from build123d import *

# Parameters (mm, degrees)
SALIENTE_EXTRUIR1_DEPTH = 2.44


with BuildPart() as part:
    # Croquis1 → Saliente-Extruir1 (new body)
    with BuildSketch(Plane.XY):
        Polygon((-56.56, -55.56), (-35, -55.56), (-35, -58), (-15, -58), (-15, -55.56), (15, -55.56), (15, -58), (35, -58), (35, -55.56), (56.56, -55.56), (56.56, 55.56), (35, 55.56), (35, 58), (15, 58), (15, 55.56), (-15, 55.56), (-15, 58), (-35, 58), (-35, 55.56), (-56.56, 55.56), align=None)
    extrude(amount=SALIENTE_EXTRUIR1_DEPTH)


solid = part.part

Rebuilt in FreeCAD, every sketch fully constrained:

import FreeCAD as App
import Part
import Sketcher

V = App.Vector


def add_polygon(sketch, points):
    """Adds a closed chain of lines whose ends are joined by coincident constraints."""
    first, n = sketch.GeometryCount, len(points)
    for a, b in zip(points, points[1:] + points[:1]):
        sketch.addGeometry(Part.LineSegment(App.Vector(*a, 0), App.Vector(*b, 0)), False)
    for i in range(n):
        sketch.addConstraint(Sketcher.Constraint("Coincident", first + i, 2, first + (i + 1) % n, 1))

doc = App.newDocument("Part")
params = doc.addObject("Spreadsheet::Sheet", "Params")
for row, (alias, value) in enumerate([
    ("sketch1_width", "20 mm"),
    ("sketch1_width2", "30 mm"),
    ("sketch1_width3", "21.56 mm"),
    ("sketch1_height", "2.44 mm"),
    ("pad1_length", "2.44 mm"),
], start=1):
    params.set(f"A{row}", alias)
    params.set(f"B{row}", "=" + value)
    params.setAlias(f"B{row}", alias)

body = doc.addObject("PartDesign::Body", "Body")

sketch1 = body.newObject("Sketcher::SketchObject", "Sketch")
sketch1.AttachmentSupport = (doc.getObject("XY_Plane"), [""])
sketch1.MapMode = "FlatFace"
add_polygon(sketch1, [(-56.56, -55.56), (-35, -55.56), (-35, -58), (-15, -58), (-15, -55.56), (15, -55.56), (15, -58), (35, -58), (35, -55.56), (56.56, -55.56), (56.56, 55.56), (35, 55.56), (35, 58), (15, 58), (15, 55.56), (-15, 55.56), (-15, 58), (-35, 58), (-35, 55.56), (-56.56, 55.56)])
sketch1.addConstraint([
    Sketcher.Constraint("Horizontal", 0),
    Sketcher.Constraint("Vertical", 1),
    Sketcher.Constraint("Horizontal", 2),
    Sketcher.Constraint("Vertical", 3),
    Sketcher.Constraint("Horizontal", 4),
    Sketcher.Constraint("Vertical", 5),
    Sketcher.Constraint("Horizontal", 6),
    Sketcher.Constraint("Vertical", 7),
    Sketcher.Constraint("Horizontal", 8),
    Sketcher.Constraint("Vertical", 9),
    Sketcher.Constraint("Horizontal", 10),
    Sketcher.Constraint("Vertical", 11),
    Sketcher.Constraint("Horizontal", 12),
    Sketcher.Constraint("Vertical", 13),
    Sketcher.Constraint("Horizontal", 14),
    Sketcher.Constraint("Vertical", 15),
    Sketcher.Constraint("Horizontal", 16),
    Sketcher.Constraint("Vertical", 17),
    Sketcher.Constraint("Horizontal", 18),
    Sketcher.Constraint("Vertical", 19),
    Sketcher.Constraint("Symmetric", 0, 2, 10, 2, -1, 1),
    Sketcher.Constraint("Symmetric", 2, 2, 12, 2, -1, 1),
    Sketcher.Constraint("Symmetric", 4, 2, 14, 2, -1, 1),
    Sketcher.Constraint("Symmetric", 6, 2, 16, 2, -1, 1),
    Sketcher.Constraint("Symmetric", 8, 2, 18, 2, -1, 1),
    Sketcher.Constraint("Symmetric", 2, 2, 5, 2, -2),
    Sketcher.Constraint("Symmetric", 0, 2, 7, 2, -2),
    Sketcher.Constraint("Horizontal", 0, 2, 3, 2),
    Sketcher.Constraint("DistanceX", 2, 1, 2, 2, 20.0),
    Sketcher.Constraint("DistanceX", 4, 1, 4, 2, 30.0),
    Sketcher.Constraint("DistanceY", 1, 2, -1, 1, 58.0),
    Sketcher.Constraint("DistanceX", 0, 1, 0, 2, 21.56),
    Sketcher.Constraint("DistanceY", 1, 2, 1, 1, 2.44),
])
sketch1.setExpression("Constraints[48]", "Params.sketch1_width")
sketch1.setExpression("Constraints[49]", "Params.sketch1_width2")
sketch1.setExpression("Constraints[51]", "Params.sketch1_width3")
sketch1.setExpression("Constraints[52]", "Params.sketch1_height")
pad1 = body.newObject("PartDesign::Pad", "Pad")
pad1.Profile = sketch1
pad1.setExpression("Length", "Params.pad1_length")

doc.recompute()
